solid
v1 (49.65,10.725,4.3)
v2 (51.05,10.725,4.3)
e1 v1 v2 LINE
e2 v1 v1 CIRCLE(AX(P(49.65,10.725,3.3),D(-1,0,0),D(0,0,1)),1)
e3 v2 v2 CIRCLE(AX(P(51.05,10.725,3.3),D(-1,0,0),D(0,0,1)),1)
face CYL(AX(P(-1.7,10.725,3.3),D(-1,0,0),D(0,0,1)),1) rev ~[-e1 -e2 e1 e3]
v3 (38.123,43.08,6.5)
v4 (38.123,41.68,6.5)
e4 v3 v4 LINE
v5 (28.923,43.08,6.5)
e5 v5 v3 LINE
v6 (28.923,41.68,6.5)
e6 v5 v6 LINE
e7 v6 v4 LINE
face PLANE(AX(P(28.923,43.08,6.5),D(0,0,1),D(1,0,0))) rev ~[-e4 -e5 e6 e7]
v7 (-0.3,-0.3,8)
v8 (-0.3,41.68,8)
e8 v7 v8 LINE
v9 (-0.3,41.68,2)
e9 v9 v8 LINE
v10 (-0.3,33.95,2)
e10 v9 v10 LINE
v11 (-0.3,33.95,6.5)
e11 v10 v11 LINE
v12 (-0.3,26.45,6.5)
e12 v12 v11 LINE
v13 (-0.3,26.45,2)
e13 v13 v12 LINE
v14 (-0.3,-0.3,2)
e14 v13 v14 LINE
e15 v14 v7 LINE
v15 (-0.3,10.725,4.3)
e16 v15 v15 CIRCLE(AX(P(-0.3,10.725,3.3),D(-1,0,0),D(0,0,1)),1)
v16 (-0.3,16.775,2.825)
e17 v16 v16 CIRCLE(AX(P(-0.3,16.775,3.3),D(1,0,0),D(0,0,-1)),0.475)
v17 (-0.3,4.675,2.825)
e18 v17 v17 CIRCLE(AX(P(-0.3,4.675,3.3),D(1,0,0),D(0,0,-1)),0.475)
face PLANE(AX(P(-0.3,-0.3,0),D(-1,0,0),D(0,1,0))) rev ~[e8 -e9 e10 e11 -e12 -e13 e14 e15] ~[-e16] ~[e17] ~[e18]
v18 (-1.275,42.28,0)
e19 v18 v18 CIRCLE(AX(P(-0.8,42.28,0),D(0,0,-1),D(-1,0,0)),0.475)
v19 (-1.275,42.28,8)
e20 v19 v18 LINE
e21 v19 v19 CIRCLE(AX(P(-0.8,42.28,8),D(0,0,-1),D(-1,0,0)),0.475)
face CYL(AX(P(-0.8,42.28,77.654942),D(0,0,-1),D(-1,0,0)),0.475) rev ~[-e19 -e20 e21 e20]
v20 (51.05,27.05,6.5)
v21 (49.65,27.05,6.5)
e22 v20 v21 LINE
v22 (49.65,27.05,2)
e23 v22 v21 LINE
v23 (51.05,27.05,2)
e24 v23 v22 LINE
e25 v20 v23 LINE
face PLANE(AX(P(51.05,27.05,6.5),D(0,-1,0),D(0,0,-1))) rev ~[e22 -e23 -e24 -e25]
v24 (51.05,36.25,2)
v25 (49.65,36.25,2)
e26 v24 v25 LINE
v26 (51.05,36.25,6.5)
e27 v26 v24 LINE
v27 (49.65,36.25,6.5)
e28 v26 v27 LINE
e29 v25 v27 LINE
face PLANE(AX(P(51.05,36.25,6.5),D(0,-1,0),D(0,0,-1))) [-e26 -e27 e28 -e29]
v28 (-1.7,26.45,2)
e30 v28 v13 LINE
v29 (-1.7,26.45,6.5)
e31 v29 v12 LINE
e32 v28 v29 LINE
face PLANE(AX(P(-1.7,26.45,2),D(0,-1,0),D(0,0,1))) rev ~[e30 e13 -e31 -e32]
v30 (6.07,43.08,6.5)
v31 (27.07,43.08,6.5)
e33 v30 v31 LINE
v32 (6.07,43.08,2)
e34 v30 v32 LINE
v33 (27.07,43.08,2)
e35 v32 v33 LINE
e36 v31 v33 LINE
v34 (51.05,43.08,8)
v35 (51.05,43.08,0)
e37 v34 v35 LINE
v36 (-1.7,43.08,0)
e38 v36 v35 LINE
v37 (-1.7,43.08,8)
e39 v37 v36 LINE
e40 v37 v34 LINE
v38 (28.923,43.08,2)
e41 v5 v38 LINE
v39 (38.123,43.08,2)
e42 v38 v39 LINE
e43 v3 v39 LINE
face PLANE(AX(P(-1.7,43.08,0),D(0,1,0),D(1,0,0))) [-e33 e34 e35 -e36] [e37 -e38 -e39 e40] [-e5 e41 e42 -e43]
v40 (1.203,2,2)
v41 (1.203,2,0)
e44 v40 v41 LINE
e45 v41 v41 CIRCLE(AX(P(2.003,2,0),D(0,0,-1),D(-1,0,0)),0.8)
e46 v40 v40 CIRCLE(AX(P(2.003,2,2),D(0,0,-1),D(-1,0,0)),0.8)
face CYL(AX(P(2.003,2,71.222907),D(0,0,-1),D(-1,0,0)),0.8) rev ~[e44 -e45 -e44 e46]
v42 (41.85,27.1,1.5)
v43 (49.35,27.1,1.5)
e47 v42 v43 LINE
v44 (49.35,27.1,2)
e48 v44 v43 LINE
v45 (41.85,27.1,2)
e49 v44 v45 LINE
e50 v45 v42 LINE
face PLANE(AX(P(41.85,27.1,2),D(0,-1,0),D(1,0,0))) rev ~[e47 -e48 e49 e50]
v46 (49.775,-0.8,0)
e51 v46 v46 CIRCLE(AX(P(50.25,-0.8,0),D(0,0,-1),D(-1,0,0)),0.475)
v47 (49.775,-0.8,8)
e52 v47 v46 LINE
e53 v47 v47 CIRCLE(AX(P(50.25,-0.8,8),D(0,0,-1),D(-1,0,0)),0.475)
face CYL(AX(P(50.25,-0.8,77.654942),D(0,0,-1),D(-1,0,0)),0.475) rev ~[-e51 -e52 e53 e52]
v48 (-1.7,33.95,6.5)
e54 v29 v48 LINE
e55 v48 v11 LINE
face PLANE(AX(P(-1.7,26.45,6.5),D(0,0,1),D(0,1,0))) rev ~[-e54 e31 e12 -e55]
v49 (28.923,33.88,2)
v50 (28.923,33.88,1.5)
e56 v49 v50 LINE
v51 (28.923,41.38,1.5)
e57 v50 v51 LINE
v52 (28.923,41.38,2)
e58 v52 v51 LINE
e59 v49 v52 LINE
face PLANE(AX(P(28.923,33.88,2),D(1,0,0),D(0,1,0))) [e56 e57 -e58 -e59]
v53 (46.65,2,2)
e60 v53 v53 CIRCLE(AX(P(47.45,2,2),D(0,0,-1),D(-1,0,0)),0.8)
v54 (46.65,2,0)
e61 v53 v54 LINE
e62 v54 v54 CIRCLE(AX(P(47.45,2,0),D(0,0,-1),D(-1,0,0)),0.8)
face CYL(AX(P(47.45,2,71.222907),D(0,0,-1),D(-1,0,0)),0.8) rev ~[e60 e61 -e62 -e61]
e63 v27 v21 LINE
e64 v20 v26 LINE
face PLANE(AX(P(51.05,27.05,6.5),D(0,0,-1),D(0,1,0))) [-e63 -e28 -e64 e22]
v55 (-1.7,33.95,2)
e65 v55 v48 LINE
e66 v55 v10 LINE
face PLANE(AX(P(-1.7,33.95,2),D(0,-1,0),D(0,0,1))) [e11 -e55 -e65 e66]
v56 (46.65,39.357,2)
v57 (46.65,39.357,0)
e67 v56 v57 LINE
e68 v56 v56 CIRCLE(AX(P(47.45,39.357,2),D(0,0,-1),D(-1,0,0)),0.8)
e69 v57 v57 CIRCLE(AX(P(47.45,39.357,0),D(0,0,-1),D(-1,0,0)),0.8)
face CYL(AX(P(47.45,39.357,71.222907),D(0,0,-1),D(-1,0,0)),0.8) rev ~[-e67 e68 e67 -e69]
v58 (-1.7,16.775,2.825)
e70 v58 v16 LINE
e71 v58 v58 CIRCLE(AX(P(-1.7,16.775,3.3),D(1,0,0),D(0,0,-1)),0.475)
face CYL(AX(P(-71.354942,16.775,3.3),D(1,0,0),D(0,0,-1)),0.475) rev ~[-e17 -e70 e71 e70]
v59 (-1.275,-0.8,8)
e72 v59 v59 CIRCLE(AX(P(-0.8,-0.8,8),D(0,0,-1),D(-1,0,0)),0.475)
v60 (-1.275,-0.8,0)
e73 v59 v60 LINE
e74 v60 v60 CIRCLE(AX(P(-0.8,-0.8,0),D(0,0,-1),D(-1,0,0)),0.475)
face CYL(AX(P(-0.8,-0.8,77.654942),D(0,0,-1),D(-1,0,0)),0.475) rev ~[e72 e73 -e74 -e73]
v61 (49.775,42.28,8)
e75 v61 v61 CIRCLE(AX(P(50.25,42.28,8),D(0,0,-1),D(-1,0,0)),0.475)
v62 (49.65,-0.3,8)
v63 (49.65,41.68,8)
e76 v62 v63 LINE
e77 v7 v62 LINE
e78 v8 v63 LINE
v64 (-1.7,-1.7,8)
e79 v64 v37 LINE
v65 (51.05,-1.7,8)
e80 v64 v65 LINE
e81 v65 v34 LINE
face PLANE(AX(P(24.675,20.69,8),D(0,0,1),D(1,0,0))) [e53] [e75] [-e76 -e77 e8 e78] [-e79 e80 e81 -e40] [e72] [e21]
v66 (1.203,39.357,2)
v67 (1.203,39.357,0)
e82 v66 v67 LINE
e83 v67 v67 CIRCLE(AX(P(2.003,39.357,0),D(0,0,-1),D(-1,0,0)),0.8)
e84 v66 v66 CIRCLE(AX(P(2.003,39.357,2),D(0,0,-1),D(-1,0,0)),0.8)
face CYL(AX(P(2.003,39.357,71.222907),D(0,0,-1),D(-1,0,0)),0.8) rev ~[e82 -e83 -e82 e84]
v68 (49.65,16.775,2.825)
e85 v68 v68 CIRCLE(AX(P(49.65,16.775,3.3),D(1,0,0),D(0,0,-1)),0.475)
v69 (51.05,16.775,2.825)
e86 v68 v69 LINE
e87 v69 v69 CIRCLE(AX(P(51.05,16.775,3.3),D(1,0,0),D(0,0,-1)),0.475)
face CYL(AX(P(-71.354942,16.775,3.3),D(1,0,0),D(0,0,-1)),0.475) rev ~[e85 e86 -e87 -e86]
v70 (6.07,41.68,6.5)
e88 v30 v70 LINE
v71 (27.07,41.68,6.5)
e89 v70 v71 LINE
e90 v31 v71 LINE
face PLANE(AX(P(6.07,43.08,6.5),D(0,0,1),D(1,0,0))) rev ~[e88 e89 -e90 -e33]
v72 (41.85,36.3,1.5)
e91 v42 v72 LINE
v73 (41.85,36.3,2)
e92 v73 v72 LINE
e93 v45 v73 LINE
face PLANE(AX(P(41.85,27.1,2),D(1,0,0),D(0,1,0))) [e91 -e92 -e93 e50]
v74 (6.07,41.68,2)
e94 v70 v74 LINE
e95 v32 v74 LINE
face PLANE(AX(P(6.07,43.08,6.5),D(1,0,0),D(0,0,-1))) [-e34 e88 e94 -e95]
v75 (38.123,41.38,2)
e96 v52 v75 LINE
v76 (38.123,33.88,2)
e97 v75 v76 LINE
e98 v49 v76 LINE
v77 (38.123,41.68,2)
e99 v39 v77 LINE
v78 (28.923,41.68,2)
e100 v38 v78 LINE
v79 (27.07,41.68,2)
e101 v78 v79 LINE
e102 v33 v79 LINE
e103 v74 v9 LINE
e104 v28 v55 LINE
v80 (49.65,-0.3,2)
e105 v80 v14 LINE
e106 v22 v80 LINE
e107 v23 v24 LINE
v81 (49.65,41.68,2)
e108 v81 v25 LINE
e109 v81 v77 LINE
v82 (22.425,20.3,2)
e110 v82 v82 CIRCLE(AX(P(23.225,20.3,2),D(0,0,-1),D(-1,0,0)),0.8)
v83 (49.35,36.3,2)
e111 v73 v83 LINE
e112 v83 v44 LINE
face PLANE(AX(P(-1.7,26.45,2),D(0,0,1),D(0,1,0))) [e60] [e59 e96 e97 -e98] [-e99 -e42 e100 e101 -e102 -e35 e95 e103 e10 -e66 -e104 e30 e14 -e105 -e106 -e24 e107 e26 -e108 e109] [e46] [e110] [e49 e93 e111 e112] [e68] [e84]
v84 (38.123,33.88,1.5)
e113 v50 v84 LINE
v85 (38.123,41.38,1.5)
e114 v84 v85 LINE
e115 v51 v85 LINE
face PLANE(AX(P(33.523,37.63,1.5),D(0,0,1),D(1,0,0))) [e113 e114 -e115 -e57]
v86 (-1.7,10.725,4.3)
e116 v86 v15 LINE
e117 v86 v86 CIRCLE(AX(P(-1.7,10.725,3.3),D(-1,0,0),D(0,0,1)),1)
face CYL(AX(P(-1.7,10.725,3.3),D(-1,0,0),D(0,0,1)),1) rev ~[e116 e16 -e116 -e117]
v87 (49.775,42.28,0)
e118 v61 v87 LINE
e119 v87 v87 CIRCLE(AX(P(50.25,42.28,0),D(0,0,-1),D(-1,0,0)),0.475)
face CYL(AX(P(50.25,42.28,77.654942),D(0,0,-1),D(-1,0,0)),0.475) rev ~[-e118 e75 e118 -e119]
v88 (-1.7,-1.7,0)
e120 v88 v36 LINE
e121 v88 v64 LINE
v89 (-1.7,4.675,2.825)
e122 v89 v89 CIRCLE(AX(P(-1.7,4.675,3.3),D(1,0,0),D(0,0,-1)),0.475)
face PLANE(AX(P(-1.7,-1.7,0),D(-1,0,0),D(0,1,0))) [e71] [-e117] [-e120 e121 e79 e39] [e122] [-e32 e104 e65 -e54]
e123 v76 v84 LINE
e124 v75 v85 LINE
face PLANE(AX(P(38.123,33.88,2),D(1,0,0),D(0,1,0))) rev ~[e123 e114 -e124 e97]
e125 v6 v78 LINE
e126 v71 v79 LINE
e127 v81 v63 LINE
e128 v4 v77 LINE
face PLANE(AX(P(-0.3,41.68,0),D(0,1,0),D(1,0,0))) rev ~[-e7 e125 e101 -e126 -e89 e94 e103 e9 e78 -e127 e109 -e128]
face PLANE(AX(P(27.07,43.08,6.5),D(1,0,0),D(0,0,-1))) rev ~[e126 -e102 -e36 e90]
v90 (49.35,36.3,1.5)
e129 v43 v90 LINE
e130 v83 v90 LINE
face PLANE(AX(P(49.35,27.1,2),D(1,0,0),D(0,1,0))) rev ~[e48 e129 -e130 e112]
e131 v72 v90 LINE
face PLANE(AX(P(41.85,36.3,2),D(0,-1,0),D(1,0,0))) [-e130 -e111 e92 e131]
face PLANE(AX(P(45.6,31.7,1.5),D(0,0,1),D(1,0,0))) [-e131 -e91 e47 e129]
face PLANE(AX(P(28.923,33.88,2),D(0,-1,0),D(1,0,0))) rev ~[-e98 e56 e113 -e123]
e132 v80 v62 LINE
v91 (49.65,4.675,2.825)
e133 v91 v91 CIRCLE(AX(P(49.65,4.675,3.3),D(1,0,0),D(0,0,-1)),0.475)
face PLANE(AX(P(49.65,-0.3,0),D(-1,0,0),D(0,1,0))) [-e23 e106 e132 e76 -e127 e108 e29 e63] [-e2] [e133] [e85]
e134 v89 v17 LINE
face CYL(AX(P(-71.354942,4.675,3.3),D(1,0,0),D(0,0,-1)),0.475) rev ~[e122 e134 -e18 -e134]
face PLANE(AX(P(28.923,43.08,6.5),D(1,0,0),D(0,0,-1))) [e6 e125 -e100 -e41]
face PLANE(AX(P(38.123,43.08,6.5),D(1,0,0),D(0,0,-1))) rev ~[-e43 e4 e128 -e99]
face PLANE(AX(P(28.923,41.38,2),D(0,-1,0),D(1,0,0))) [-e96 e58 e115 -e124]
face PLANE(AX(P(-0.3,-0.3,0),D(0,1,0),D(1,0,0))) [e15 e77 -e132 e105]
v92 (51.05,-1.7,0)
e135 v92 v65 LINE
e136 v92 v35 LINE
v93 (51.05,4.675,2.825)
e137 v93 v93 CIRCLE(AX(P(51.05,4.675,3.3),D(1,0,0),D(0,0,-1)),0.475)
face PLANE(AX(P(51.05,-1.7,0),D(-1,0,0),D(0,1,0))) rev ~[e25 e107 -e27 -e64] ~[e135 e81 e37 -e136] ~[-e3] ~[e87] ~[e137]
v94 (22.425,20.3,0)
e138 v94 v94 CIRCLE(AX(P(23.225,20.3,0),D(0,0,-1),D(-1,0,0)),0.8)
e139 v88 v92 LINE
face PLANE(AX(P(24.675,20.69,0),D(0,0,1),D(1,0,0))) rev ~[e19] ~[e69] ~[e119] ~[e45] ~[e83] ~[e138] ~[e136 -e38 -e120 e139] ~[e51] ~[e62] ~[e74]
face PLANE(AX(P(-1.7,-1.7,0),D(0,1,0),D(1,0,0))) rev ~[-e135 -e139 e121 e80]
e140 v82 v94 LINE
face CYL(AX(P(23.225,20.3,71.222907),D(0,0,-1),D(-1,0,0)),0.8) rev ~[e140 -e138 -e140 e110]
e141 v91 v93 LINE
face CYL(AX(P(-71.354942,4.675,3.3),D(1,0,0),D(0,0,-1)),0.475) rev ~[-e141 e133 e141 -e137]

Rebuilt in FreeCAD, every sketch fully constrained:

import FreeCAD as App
import Part
import Sketcher


def add_polygon(sketch, points):
    """Adds a closed chain of lines whose ends are joined by coincident constraints."""
    first, n = sketch.GeometryCount, len(points)
    for a, b in zip(points, points[1:] + points[:1]):
        sketch.addGeometry(Part.LineSegment(App.Vector(*a, 0), App.Vector(*b, 0)), False)
    for i in range(n):
        sketch.addConstraint(Sketcher.Constraint("Coincident", first + i, 2, first + (i + 1) % n, 1))

doc = App.newDocument("Part")
body = doc.addObject("PartDesign::Body", "Body")

sketch1 = body.newObject("Sketcher::SketchObject", "Sketch")
sketch1.AttachmentSupport = (doc.getObject("XY_Plane"), [""])
sketch1.MapMode = "FlatFace"
add_polygon(sketch1, [(-2, 43), (-2, -2), (51, -2), (51, 43)])
sketch1.addConstraint([
    Sketcher.Constraint("Vertical", 0),
    Sketcher.Constraint("Horizontal", 1),
    Sketcher.Constraint("Vertical", 2),
    Sketcher.Constraint("Horizontal", 3),
    Sketcher.Constraint("DistanceX", 1, 1, 1, 2, 52.75),
    Sketcher.Constraint("DistanceY", 0, 2, 0, 1, 44.78),
    Sketcher.Constraint("DistanceX", 0, 2, -1, 1, 1.7),
    Sketcher.Constraint("DistanceY", 0, 2, -1, 1, 1.7),
])
pad1 = body.newObject("PartDesign::Pad", "Pad")
pad1.Profile = sketch1
pad1.Length = 2

sketch2 = body.newObject("Sketcher::SketchObject", "Sketch001")
sketch2.AttachmentSupport = (doc.getObject("XY_Plane"), [""])
sketch2.MapMode = "FlatFace"
sketch2.AttachmentOffset = App.Placement(App.Vector(0, 0, 2), App.Rotation())
sketch2.addGeometry([
    Part.Circle(App.Vector(2, 2, 0), App.Vector(0, 0, 1), 0.8),
    Part.Circle(App.Vector(47.5, 2, 0), App.Vector(0, 0, 1), 0.8),
    Part.Circle(App.Vector(47.5, 39.4, 0), App.Vector(0, 0, 1), 0.8),
    Part.Circle(App.Vector(2, 39.4, 0), App.Vector(0, 0, 1), 0.8),
    Part.Circle(App.Vector(23.2, 20.3, 0), App.Vector(0, 0, 1), 0.8),
], False)
sketch2.addConstraint([
    Sketcher.Constraint("Equal", 0, 1),
    Sketcher.Constraint("Equal", 1, 2),
    Sketcher.Constraint("Equal", 2, 3),
    Sketcher.Constraint("Equal", 3, 4),
    Sketcher.Constraint("Horizontal", 0, 3, 1, 3),
    Sketcher.Constraint("Horizontal", 2, 3, 3, 3),
    Sketcher.Constraint("Vertical", 1, 3, 2, 3),
    Sketcher.Constraint("Vertical", 0, 3, 3, 3),
    Sketcher.Constraint("Diameter", 0, 1.6),
    Sketcher.Constraint("DistanceY", -1, 1, 0, 3, 2.0),
    Sketcher.Constraint("DistanceY", -1, 1, 4, 3, 20.3),
    Sketcher.Constraint("DistanceX", -1, 1, 1, 3, 47.45),
    Sketcher.Constraint("DistanceX", -1, 1, 0, 3, 2.003),
    Sketcher.Constraint("DistanceY", -1, 1, 2, 3, 39.357),
    Sketcher.Constraint("DistanceX", -1, 1, 4, 3, 23.225),
])
doc.recompute()
hole = body.newObject("PartDesign::Hole", "Hole")
hole.Profile = sketch2
hole.ThreadType = "None"
hole.Diameter = 1.6
hole.DepthType = "ThroughAll"

sketch3 = body.newObject("Sketcher::SketchObject", "Sketch002")
sketch3.AttachmentSupport = (doc.getObject("XY_Plane"), [""])
sketch3.MapMode = "FlatFace"
sketch3.AttachmentOffset = App.Placement(App.Vector(0, 0, 2), App.Rotation())
add_polygon(sketch3, [(29, 41), (29, 34), (38, 34), (38, 41)])
add_polygon(sketch3, [(42, 36), (42, 27), (49, 27), (49, 36)])
sketch3.addConstraint([
    Sketcher.Constraint("Vertical", 0),
    Sketcher.Constraint("Horizontal", 1),
    Sketcher.Constraint("Vertical", 2),
    Sketcher.Constraint("Horizontal", 3),
    Sketcher.Constraint("Vertical", 4),
    Sketcher.Constraint("Horizontal", 5),
    Sketcher.Constraint("Vertical", 6),
    Sketcher.Constraint("Horizontal", 7),
    Sketcher.Constraint("Equal", 7, 0),
    Sketcher.Constraint("Equal", 3, 4),
    Sketcher.Constraint("DistanceX", 1, 1, 1, 2, 9.2),
    Sketcher.Constraint("DistanceX", 5, 1, 5, 2, 7.5),
    Sketcher.Constraint("DistanceY", -1, 1, 4, 2, 27.1),
    Sketcher.Constraint("DistanceY", -1, 1, 0, 2, 33.88),
    Sketcher.Constraint("DistanceX", -1, 1, 4, 2, 41.85),
    Sketcher.Constraint("DistanceX", -1, 1, 0, 2, 28.923),
])
pocket1 = body.newObject("PartDesign::Pocket", "Pocket")
pocket1.Profile = sketch3
pocket1.Length = 0.5

sketch4 = body.newObject("Sketcher::SketchObject", "Sketch003")
sketch4.AttachmentSupport = (doc.getObject("XY_Plane"), [""])
sketch4.MapMode = "FlatFace"
add_polygon(sketch4, [(-2, 43), (-2, -2), (51, -2), (51, 43)])
add_polygon(sketch4, [(50, 0), (0, 0), (0, 42), (50, 42)])
sketch4.addConstraint([
    Sketcher.Constraint("Vertical", 0),
    Sketcher.Constraint("Horizontal", 1),
    Sketcher.Constraint("Vertical", 2),
    Sketcher.Constraint("Horizontal", 3),
    Sketcher.Constraint("Horizontal", 4),
    Sketcher.Constraint("Vertical", 5),
    Sketcher.Constraint("Horizontal", 6),
    Sketcher.Constraint("Vertical", 7),
    Sketcher.Constraint("DistanceX", 1, 1, 1, 2, 52.75),
    Sketcher.Constraint("DistanceX", 4, 2, 4, 1, 49.95),
    Sketcher.Constraint("DistanceY", 0, 2, 0, 1, 44.78),
    Sketcher.Constraint("DistanceY", 5, 1, 5, 2, 41.98),
    Sketcher.Constraint("DistanceX", 0, 2, -1, 1, 1.7),
    Sketcher.Constraint("DistanceY", 0, 2, -1, 1, 1.7),
    Sketcher.Constraint("DistanceX", 4, 2, -1, 1, 0.3),
    Sketcher.Constraint("DistanceY", 4, 2, -1, 1, 0.3),
])
pad2 = body.newObject("PartDesign::Pad", "Pad001")
pad2.Profile = sketch4
pad2.Length = 8

sketch5 = body.newObject("Sketcher::SketchObject", "Sketch004")
sketch5.AttachmentSupport = (doc.getObject("YZ_Plane"), [""])
sketch5.MapMode = "FlatFace"
sketch5.AttachmentOffset = App.Placement(App.Vector(0, 0, -1.7), App.Rotation())
sketch5.addGeometry(Part.Circle(App.Vector(10.7, 3.3, 0), App.Vector(0, 0, 1), 1), False)
sketch5.addConstraint([
    Sketcher.Constraint("Diameter", 0, 2.0),
    Sketcher.Constraint("DistanceY", -1, 1, 0, 3, 3.3),
    Sketcher.Constraint("DistanceX", -1, 1, 0, 3, 10.725),
])
pocket2 = body.newObject("PartDesign::Pocket", "Pocket001")
pocket2.Profile = sketch5
pocket2.Type = "ThroughAll"
pocket2.Reversed = True

sketch6 = body.newObject("Sketcher::SketchObject", "Sketch005")
sketch6.AttachmentSupport = (doc.getObject("YZ_Plane"), [""])
sketch6.MapMode = "FlatFace"
sketch6.AttachmentOffset = App.Placement(App.Vector(0, 0, -1.7), App.Rotation())
sketch6.addGeometry([
    Part.Circle(App.Vector(16.77, 3.3, 0), App.Vector(0, 0, 1), 0.47),
    Part.Circle(App.Vector(4.67, 3.3, 0), App.Vector(0, 0, 1), 0.47),
], False)
sketch6.addConstraint([
    Sketcher.Constraint("Equal", 0, 1),
    Sketcher.Constraint("Horizontal", 0, 3, 1, 3),
    Sketcher.Constraint("Diameter", 0, 0.95),
    Sketcher.Constraint("DistanceY", -1, 1, 0, 3, 3.3),
    Sketcher.Constraint("DistanceX", 1, 3, 0, 3, 12.1),
    Sketcher.Constraint("DistanceX", -1, 1, 0, 3, 16.775),
])
doc.recompute()
hole2 = body.newObject("PartDesign::Hole", "Hole001")
hole2.Profile = sketch6
hole2.ThreadType = "None"
hole2.Diameter = 0.95
hole2.DepthType = "ThroughAll"
hole2.Reversed = True

sketch7 = body.newObject("Sketcher::SketchObject", "Sketch006")
sketch7.AttachmentSupport = (doc.getObject("YZ_Plane"), [""])
sketch7.MapMode = "FlatFace"
sketch7.AttachmentOffset = App.Placement(App.Vector(0, 0, 51.05), App.Rotation())
add_polygon(sketch7, [(36.2, 6.5), (27.1, 6.5), (27.1, 2), (36.2, 2)])
sketch7.addConstraint([
    Sketcher.Constraint("Horizontal", 0),
    Sketcher.Constraint("Vertical", 1),
    Sketcher.Constraint("Horizontal", 2),
    Sketcher.Constraint("Vertical", 3),
    Sketcher.Constraint("DistanceX", 0, 2, 0, 1, 9.2),
    Sketcher.Constraint("DistanceY", 1, 2, 1, 1, 4.5),
    Sketcher.Constraint("DistanceY", -1, 1, 1, 2, 2.0),
    Sketcher.Constraint("DistanceX", -1, 1, 0, 2, 27.05),
])
pocket3 = body.newObject("PartDesign::Pocket", "Pocket002")
pocket3.Profile = sketch7
pocket3.Length = 2

sketch8 = body.newObject("Sketcher::SketchObject", "Sketch007")
sketch8.AttachmentSupport = (doc.getObject("XZ_Plane"), [""])
sketch8.MapMode = "FlatFace"
sketch8.AttachmentOffset = App.Placement(App.Vector(0, 0, -43.08), App.Rotation())
add_polygon(sketch8, [(28.9, 2), (28.9, 6.5), (38.1, 6.5), (38.1, 2)])
add_polygon(sketch8, [(6.1, 2), (6.1, 6.5), (27.1, 6.5), (27.1, 2)])
sketch8.addConstraint([
    Sketcher.Constraint("Vertical", 0),
    Sketcher.Constraint("Horizontal", 1),
    Sketcher.Constraint("Vertical", 2),
    Sketcher.Constraint("Horizontal", 3),
    Sketcher.Constraint("Vertical", 4),
    Sketcher.Constraint("Horizontal", 5),
    Sketcher.Constraint("Vertical", 6),
    Sketcher.Constraint("Horizontal", 7),
    Sketcher.Constraint("Horizontal", 1, 2, 4, 2),
    Sketcher.Constraint("Horizontal", 3, 2, 6, 2),
    Sketcher.Constraint("DistanceX", 5, 1, 5, 2, 21.0),
    Sketcher.Constraint("DistanceX", 1, 1, 1, 2, 9.2),
    Sketcher.Constraint("DistanceY", 0, 1, 0, 2, 4.5),
    Sketcher.Constraint("DistanceY", -1, 1, 2, 2, 2.0),
    Sketcher.Constraint("DistanceX", -1, 1, 4, 2, 6.07),
    Sketcher.Constraint("DistanceX", -1, 1, 0, 2, 28.923),
])
pocket4 = body.newObject("PartDesign::Pocket", "Pocket003")
pocket4.Profile = sketch8
pocket4.Length = 2
pocket4.Reversed = True

sketch9 = body.newObject("Sketcher::SketchObject", "Sketch008")
sketch9.AttachmentSupport = (doc.getObject("YZ_Plane"), [""])
sketch9.MapMode = "FlatFace"
sketch9.AttachmentOffset = App.Placement(App.Vector(0, 0, -1.7), App.Rotation())
add_polygon(sketch9, [(34, 2), (26.4, 2), (26.4, 6.5), (34, 6.5)])
sketch9.addConstraint([
    Sketcher.Constraint("Horizontal", 0),
    Sketcher.Constraint("Vertical", 1),
    Sketcher.Constraint("Horizontal", 2),
    Sketcher.Constraint("Vertical", 3),
    Sketcher.Constraint("DistanceX", 0, 2, 0, 1, 7.5),
    Sketcher.Constraint("DistanceY", 1, 1, 1, 2, 4.5),
    Sketcher.Constraint("DistanceY", -1, 1, 0, 2, 2.0),
    Sketcher.Constraint("DistanceX", -1, 1, 0, 2, 26.45),
])
pocket5 = body.newObject("PartDesign::Pocket", "Pocket004")
pocket5.Profile = sketch9
pocket5.Length = 2
pocket5.Reversed = True

sketch10 = body.newObject("Sketcher::SketchObject", "Sketch009")
sketch10.AttachmentSupport = (doc.getObject("XY_Plane"), [""])
sketch10.MapMode = "FlatFace"
sketch10.AttachmentOffset = App.Placement(App.Vector(0, 0, 8), App.Rotation())
sketch10.addGeometry([
    Part.Circle(App.Vector(-0.8, -0.8, 0), App.Vector(0, 0, 1), 0.47),
    Part.Circle(App.Vector(50.25, -0.8, 0), App.Vector(0, 0, 1), 0.47),
    Part.Circle(App.Vector(50.25, 42.28, 0), App.Vector(0, 0, 1), 0.47),
    Part.Circle(App.Vector(-0.8, 42.28, 0), App.Vector(0, 0, 1), 0.47),
], False)
sketch10.addConstraint([
    Sketcher.Constraint("Equal", 0, 1),
    Sketcher.Constraint("Equal", 1, 2),
    Sketcher.Constraint("Equal", 2, 3),
    Sketcher.Constraint("Horizontal", 0, 3, 1, 3),
    Sketcher.Constraint("Horizontal", 2, 3, 3, 3),
    Sketcher.Constraint("Vertical", 1, 3, 2, 3),
    Sketcher.Constraint("Vertical", 0, 3, 3, 3),
    Sketcher.Constraint("Diameter", 0, 0.95),
    Sketcher.Constraint("DistanceX", 0, 3, -1, 1, 0.8),
    Sketcher.Constraint("DistanceY", 0, 3, -1, 1, 0.8),
    Sketcher.Constraint("DistanceX", -1, 1, 1, 3, 50.25),
    Sketcher.Constraint("DistanceY", -1, 1, 2, 3, 42.28),
])
doc.recompute()
hole3 = body.newObject("PartDesign::Hole", "Hole002")
hole3.Profile = sketch10
hole3.ThreadType = "None"
hole3.Diameter = 0.95
hole3.DepthType = "ThroughAll"

doc.recompute()
